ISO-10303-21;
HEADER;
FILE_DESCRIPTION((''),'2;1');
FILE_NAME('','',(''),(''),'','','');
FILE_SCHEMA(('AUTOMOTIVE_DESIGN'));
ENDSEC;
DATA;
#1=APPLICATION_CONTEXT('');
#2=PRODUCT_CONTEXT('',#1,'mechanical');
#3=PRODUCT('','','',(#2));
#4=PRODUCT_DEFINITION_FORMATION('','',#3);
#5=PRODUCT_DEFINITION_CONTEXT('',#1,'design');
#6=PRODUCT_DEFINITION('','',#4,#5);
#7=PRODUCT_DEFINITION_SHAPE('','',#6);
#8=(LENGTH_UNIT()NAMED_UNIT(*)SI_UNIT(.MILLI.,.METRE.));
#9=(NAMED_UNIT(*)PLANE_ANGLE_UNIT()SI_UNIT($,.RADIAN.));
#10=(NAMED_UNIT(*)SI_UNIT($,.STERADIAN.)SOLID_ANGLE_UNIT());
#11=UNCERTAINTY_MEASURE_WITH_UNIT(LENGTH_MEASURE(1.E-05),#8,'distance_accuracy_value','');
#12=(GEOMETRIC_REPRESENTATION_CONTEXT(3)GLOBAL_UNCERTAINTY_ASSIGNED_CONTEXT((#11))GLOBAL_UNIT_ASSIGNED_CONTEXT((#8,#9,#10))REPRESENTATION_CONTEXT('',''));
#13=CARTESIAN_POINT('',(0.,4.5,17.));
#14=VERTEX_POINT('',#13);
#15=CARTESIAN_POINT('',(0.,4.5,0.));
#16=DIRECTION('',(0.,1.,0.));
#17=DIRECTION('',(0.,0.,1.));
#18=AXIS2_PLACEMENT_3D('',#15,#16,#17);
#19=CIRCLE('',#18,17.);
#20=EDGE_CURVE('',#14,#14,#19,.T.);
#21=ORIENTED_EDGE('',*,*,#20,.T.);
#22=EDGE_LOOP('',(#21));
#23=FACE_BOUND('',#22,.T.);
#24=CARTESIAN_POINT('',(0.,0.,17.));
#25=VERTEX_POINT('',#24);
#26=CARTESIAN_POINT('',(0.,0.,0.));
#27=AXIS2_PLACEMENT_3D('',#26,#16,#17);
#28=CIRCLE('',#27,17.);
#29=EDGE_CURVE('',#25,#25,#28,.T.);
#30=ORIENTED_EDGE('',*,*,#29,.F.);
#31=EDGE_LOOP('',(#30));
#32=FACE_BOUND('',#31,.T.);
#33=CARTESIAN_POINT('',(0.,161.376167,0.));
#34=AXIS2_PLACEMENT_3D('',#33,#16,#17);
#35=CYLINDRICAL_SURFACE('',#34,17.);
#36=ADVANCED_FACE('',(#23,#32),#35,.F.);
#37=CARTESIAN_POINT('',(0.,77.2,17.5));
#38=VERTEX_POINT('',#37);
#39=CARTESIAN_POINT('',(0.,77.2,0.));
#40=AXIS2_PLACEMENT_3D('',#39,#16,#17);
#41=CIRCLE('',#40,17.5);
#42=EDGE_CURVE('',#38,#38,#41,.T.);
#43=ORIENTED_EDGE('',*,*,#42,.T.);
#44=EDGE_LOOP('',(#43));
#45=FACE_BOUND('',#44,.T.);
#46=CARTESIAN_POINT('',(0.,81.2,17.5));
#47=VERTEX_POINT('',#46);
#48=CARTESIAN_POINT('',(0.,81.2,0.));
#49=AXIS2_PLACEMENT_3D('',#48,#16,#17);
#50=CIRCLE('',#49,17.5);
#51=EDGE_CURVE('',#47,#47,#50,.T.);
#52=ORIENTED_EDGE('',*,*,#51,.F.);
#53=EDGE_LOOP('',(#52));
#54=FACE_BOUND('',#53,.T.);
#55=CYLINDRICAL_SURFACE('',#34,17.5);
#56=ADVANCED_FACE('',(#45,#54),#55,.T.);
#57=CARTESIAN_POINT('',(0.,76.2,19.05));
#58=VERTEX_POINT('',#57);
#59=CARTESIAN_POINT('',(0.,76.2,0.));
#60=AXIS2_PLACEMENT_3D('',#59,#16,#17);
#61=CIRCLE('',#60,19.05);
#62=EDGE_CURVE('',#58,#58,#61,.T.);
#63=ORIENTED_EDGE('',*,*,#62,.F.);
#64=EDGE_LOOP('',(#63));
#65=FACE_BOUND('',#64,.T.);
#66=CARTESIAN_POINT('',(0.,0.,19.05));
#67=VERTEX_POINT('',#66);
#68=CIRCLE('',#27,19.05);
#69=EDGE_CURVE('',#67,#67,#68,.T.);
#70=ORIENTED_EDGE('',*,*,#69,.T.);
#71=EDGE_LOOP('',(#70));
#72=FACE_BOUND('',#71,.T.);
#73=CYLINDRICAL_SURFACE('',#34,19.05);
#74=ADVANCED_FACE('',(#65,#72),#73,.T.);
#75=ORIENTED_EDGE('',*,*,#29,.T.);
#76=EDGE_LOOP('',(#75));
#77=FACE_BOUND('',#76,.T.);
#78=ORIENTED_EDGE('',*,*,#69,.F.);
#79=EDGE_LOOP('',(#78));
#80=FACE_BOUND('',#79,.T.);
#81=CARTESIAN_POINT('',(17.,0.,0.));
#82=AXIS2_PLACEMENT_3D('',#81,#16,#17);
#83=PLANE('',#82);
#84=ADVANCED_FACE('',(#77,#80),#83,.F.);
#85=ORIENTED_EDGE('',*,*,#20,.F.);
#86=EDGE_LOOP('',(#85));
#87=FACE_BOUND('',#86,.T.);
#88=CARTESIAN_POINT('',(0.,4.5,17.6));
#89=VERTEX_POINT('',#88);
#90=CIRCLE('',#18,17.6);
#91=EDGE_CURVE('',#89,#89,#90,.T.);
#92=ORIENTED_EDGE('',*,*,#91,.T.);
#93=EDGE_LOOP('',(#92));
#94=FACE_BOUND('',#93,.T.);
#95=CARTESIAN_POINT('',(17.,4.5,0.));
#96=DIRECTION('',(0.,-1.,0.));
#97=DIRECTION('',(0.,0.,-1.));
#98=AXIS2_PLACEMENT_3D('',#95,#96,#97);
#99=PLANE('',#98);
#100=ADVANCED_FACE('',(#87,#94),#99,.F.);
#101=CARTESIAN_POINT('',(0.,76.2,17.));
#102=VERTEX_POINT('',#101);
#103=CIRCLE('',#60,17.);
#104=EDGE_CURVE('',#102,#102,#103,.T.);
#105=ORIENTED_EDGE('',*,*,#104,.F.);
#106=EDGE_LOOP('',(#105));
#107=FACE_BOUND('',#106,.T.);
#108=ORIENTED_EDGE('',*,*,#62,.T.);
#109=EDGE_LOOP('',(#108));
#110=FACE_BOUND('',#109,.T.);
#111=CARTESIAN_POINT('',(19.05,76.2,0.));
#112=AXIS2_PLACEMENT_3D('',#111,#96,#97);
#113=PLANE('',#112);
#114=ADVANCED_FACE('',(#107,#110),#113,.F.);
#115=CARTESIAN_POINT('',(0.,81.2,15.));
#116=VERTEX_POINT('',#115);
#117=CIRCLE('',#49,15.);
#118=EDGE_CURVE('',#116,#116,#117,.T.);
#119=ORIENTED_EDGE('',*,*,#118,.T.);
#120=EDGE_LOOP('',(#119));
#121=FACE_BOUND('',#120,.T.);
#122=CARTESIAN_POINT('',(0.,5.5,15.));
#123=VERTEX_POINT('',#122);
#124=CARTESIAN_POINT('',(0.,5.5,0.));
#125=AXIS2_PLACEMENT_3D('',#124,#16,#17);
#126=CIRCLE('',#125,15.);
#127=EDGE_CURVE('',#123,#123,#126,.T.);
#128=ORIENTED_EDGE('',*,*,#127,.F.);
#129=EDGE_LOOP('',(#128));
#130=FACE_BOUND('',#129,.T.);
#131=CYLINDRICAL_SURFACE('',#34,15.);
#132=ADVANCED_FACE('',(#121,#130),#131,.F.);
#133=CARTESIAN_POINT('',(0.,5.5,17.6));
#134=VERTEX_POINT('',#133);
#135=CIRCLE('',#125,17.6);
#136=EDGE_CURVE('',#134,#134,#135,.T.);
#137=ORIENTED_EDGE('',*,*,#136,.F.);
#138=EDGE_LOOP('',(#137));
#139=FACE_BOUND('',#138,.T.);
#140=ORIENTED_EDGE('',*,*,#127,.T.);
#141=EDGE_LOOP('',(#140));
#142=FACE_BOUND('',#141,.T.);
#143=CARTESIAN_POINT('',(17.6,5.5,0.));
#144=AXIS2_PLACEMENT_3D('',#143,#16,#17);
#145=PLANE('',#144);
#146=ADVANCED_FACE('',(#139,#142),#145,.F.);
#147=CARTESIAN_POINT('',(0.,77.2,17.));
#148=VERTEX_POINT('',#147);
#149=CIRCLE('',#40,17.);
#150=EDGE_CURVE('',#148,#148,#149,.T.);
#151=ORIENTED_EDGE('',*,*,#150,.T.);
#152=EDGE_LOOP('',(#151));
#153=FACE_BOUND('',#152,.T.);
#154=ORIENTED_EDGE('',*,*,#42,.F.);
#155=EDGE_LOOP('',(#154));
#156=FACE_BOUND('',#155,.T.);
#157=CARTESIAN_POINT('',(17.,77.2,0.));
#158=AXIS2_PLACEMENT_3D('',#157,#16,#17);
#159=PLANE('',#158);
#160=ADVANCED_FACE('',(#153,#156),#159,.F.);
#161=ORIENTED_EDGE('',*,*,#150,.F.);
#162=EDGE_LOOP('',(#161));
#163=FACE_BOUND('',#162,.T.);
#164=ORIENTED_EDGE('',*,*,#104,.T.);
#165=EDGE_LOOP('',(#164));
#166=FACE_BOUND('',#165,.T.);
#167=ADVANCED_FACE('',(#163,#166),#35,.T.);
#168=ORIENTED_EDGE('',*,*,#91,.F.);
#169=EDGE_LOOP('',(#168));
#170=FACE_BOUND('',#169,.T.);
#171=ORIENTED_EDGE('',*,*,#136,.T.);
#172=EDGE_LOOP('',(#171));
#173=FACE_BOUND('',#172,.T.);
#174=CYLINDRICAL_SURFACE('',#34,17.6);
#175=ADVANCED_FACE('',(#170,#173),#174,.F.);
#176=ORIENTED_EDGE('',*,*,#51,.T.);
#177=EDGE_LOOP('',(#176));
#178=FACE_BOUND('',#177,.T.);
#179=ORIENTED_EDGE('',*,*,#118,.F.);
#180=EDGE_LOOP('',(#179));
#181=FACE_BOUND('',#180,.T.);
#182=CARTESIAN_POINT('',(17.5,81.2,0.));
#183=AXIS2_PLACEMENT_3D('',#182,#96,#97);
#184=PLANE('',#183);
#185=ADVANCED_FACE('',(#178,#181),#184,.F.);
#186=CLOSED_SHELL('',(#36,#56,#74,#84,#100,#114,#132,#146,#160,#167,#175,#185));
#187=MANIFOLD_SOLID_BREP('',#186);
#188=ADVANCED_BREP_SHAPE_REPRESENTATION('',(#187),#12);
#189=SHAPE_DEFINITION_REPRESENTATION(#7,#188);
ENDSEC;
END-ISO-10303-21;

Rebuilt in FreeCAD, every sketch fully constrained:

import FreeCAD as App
import Part
import Sketcher
Q = App.Units.Quantity


def add_polygon(sketch, points):
    """Adds a closed chain of lines whose ends are joined by coincident constraints."""
    first, n = sketch.GeometryCount, len(points)
    for a, b in zip(points, points[1:] + points[:1]):
        sketch.addGeometry(Part.LineSegment(App.Vector(*a, 0), App.Vector(*b, 0)), False)
    for i in range(n):
        sketch.addConstraint(Sketcher.Constraint("Coincident", first + i, 2, first + (i + 1) % n, 1))

doc = App.newDocument("Part")
body = doc.addObject("PartDesign::Body", "Body")

sketch1 = body.newObject("Sketcher::SketchObject", "Sketch")
sketch1.AttachmentSupport = (doc.getObject("XY_Plane"), [""])
sketch1.MapMode = "FlatFace"
add_polygon(sketch1, [(19.1, 0), (19.1, 76.2), (17, 76.2), (17, 77.2), (17.5, 77.2), (17.5, 81.2), (15, 81.2), (15, 5.5), (17.6, 5.5), (17.6, 4.5), (17, 4.5), (17, 0)])
sketch1.addConstraint(Sketcher.Constraint("Vertical", 0))
sketch1.addConstraint(Sketcher.Constraint("Horizontal", 1))
sketch1.addConstraint(Sketcher.Constraint("Vertical", 2))
sketch1.addConstraint(Sketcher.Constraint("Horizontal", 3))
sketch1.addConstraint(Sketcher.Constraint("Vertical", 4))
sketch1.addConstraint(Sketcher.Constraint("Horizontal", 5))
sketch1.addConstraint(Sketcher.Constraint("Vertical", 6))
sketch1.addConstraint(Sketcher.Constraint("Horizontal", 7))
sketch1.addConstraint(Sketcher.Constraint("Vertical", 8))
sketch1.addConstraint(Sketcher.Constraint("Horizontal", 9))
sketch1.addConstraint(Sketcher.Constraint("Vertical", 10))
sketch1.addConstraint(Sketcher.Constraint("Horizontal", 11))
sketch1.addConstraint(Sketcher.Constraint("PointOnObject", 10, 2, -1))
sketch1.addConstraint(Sketcher.Constraint("Vertical", 2, 2, 9, 2))
sketch1.addConstraint(Sketcher.Constraint("Equal", 2, 8))
sketch1.addConstraint(Sketcher.Constraint("DistanceY", 2, 1, 2, 2, Q("1 mm")))
sketch1.addConstraint(Sketcher.Constraint("DistanceY", 4, 1, 4, 2, Q("4 mm")))
sketch1.addConstraint(Sketcher.Constraint("DistanceX", 3, 1, 3, 2, Q("0.5 mm")))
sketch1.addConstraint(Sketcher.Constraint("DistanceX", 5, 2, 5, 1, Q("2.5 mm")))
sketch1.addConstraint(Sketcher.Constraint("DistanceX", 7, 1, 7, 2, Q("2.6 mm")))
sketch1.addConstraint(Sketcher.Constraint("DistanceY", 0, 1, 0, 2, Q("76.2 mm")))
sketch1.addConstraint(Sketcher.Constraint("DistanceY", 6, 2, 6, 1, Q("75.7 mm")))
sketch1.addConstraint(Sketcher.Constraint("DistanceX", -1, 1, 1, 2, Q("17 mm")))
sketch1.addConstraint(Sketcher.Constraint("DistanceX", 1, 2, 1, 1, Q("2.05 mm")))
revolution = body.newObject("PartDesign::Revolution", "Revolution")
revolution.Profile = sketch1
revolution.ReferenceAxis = (sketch1, ["V_Axis"])
revolution.Angle = 360

doc.recompute()
